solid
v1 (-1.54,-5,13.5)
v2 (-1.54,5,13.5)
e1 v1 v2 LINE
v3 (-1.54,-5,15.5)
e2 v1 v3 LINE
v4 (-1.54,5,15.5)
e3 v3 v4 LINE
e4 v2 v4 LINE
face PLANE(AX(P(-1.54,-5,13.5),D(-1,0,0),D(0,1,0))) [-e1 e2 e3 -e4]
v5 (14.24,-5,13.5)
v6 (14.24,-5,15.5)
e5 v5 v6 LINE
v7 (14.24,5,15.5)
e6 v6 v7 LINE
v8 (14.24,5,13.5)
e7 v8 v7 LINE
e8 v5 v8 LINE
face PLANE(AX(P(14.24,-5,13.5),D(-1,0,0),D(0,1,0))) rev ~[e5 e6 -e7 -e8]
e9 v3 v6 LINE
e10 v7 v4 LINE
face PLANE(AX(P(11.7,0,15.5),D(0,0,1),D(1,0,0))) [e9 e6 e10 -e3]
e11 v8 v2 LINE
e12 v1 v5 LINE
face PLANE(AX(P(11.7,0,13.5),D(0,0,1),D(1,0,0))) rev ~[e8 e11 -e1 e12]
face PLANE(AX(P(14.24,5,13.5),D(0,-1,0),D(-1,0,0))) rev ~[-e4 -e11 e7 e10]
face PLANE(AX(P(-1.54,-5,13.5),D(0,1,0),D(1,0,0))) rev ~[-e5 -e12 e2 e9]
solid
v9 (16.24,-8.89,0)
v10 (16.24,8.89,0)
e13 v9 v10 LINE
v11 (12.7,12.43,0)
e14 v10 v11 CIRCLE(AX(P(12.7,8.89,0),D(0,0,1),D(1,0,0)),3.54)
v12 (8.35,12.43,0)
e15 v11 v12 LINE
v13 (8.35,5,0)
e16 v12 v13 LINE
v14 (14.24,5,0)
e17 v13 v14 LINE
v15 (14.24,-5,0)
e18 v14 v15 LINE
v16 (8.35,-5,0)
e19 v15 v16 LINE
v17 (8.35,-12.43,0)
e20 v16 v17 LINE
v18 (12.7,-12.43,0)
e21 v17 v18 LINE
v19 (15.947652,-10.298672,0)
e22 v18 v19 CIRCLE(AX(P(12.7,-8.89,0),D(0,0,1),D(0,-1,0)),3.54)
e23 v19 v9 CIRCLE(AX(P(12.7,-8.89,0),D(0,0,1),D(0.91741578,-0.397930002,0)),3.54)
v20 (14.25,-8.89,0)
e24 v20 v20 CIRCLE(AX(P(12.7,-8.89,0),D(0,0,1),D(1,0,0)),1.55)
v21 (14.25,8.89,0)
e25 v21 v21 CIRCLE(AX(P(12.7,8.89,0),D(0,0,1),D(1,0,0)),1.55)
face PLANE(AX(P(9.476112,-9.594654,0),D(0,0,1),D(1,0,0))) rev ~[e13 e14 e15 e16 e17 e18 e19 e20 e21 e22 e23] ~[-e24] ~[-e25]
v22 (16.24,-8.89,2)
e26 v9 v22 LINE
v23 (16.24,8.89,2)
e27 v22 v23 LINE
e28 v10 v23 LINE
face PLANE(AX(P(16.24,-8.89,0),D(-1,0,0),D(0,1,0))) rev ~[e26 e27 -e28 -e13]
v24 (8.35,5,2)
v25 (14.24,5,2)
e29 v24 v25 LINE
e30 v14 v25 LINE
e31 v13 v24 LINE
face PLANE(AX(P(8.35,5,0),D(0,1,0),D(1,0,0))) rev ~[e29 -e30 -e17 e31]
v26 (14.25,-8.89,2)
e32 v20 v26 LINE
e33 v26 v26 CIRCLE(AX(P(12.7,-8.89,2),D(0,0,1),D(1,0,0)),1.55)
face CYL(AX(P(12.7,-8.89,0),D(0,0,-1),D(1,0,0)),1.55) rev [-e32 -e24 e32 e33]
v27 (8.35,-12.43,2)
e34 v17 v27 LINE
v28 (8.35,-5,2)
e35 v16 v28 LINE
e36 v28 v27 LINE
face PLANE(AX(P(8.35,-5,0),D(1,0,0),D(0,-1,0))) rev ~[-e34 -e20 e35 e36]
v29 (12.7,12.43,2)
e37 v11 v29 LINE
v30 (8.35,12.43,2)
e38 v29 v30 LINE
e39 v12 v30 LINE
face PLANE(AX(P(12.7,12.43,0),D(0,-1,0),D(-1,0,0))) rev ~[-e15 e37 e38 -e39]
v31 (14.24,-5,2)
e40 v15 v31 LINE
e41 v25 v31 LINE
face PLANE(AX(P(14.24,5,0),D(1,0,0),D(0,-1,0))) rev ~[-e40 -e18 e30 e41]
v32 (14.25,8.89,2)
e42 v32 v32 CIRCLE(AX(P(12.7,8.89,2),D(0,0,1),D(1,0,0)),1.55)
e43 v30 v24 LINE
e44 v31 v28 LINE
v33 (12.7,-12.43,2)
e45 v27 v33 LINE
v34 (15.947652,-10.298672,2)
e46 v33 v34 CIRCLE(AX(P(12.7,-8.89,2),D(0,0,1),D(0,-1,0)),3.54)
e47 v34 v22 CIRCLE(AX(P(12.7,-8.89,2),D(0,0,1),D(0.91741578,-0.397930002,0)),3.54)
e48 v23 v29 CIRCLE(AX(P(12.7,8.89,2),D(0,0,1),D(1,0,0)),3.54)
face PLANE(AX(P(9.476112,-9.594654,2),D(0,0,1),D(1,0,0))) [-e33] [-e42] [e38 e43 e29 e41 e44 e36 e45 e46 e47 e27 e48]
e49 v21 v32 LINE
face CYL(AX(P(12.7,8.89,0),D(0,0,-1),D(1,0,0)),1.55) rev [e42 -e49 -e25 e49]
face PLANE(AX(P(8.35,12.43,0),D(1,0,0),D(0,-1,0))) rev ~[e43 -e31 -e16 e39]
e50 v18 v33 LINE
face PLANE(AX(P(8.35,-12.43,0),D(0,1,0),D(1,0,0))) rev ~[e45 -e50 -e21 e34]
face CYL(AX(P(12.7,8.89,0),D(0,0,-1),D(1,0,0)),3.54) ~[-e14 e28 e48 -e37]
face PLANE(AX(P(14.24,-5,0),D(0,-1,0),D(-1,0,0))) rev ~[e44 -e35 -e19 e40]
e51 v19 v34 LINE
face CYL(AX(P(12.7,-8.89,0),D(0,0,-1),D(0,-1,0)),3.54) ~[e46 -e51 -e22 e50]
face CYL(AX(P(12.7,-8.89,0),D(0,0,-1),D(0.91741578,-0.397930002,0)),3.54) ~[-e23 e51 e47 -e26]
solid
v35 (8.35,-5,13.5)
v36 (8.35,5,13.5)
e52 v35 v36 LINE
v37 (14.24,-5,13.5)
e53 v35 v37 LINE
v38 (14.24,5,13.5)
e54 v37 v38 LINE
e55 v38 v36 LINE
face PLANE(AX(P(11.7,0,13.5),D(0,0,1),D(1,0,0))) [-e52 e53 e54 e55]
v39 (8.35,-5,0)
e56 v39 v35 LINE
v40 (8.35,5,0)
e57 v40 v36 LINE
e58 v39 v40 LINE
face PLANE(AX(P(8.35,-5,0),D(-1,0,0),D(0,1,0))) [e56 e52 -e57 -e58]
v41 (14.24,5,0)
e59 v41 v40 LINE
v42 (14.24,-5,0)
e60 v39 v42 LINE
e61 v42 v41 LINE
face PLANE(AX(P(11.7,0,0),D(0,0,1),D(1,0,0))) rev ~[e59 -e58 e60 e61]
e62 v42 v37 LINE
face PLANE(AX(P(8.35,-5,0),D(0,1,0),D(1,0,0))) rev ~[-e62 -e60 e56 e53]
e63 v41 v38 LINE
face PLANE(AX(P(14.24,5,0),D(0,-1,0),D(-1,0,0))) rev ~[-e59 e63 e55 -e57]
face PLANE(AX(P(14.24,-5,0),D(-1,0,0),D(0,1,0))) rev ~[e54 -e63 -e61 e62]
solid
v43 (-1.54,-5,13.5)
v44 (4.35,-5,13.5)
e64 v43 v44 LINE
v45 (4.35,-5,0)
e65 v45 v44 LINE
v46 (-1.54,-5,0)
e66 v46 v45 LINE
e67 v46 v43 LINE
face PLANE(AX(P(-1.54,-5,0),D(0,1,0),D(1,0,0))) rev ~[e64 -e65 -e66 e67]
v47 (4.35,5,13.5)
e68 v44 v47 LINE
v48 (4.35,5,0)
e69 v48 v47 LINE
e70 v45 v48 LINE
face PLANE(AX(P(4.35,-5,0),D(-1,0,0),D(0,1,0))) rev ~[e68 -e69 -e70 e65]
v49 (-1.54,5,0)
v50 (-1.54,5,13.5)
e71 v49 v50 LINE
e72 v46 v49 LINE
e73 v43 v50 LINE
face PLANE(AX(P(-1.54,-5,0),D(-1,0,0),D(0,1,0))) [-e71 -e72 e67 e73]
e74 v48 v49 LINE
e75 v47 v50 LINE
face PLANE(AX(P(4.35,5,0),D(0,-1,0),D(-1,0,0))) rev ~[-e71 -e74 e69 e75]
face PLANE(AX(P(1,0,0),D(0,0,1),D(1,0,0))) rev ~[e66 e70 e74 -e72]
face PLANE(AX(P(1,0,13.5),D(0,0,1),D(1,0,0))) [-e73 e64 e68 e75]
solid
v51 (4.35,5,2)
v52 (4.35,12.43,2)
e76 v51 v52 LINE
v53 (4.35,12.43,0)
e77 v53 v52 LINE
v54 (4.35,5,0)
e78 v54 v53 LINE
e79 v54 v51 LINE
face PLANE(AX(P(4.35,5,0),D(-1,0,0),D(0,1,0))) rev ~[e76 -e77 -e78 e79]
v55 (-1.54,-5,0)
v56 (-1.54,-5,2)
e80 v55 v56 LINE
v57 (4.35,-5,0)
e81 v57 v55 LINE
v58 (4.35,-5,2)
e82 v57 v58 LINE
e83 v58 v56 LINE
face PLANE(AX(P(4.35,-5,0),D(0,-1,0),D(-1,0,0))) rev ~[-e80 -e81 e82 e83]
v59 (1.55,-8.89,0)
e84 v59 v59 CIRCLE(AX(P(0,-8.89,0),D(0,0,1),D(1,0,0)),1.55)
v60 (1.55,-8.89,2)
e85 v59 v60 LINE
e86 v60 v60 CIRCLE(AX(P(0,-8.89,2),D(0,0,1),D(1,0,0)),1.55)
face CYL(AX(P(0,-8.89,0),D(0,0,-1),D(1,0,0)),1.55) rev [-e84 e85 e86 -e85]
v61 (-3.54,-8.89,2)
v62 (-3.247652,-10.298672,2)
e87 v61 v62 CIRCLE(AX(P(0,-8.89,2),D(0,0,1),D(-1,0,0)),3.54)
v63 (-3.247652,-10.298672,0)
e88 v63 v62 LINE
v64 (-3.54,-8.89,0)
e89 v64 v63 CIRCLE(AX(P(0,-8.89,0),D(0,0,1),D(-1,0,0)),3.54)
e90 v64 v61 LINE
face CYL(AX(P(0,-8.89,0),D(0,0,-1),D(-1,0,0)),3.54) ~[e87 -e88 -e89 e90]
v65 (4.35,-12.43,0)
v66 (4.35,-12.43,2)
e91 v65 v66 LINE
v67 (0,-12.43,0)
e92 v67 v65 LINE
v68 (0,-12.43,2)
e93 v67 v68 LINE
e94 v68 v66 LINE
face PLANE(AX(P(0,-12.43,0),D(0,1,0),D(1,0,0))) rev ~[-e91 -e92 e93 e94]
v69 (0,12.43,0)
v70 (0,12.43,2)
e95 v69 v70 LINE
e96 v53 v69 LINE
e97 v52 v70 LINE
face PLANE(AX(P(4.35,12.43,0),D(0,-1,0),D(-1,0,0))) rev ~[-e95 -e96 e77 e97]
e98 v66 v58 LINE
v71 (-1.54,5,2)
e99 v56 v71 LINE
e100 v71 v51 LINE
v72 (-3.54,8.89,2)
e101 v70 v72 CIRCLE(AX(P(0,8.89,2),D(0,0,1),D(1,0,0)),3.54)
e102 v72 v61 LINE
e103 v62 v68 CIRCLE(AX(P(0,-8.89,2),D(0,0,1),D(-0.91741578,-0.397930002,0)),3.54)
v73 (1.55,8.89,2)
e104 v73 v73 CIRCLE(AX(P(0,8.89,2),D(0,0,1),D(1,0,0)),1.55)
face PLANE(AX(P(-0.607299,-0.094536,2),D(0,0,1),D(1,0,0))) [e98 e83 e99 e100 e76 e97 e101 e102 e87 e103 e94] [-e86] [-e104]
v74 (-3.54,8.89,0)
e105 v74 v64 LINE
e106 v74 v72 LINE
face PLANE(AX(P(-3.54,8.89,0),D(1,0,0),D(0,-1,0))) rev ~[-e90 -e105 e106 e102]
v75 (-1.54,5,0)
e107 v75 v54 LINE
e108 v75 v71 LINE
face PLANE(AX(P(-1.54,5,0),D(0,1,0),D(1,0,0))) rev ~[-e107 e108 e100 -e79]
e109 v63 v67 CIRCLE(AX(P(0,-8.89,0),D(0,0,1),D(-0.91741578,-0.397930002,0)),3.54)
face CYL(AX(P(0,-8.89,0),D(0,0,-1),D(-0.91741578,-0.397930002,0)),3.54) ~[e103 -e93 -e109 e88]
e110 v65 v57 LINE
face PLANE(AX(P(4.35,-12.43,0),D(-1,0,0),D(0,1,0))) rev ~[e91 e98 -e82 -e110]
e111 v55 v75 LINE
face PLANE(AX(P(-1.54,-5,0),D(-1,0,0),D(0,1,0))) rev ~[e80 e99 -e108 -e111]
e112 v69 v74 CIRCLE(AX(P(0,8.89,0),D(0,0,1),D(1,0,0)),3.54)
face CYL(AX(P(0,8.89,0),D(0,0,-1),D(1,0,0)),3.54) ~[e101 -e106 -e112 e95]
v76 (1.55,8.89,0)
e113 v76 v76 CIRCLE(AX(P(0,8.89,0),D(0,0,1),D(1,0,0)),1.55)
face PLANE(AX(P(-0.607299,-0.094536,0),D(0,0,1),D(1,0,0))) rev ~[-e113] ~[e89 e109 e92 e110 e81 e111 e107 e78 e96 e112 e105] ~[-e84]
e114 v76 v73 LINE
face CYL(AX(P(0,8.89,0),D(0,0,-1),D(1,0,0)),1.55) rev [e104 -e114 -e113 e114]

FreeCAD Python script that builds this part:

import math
import FreeCAD as App
import Part
import Sketcher
from FreeCAD import Vector

doc = App.newDocument("Part")
body = doc.addObject("PartDesign::Body", "Body")

sketch1 = body.newObject("Sketcher::SketchObject", "Sketch")
sketch1.AttachmentSupport = (doc.getObject("XY_Plane"), [""])
sketch1.MapMode = "FlatFace"
sketch1.addGeometry([
    Part.LineSegment(Vector(-1.5, -5, 0), Vector(-1.5, 5, 0)),
    Part.LineSegment(Vector(-1.5, 5, 0), Vector(4.3, 5, 0)),
    Part.LineSegment(Vector(4.3, 5, 0), Vector(4.3, 12.4, 0)),
    Part.LineSegment(Vector(4.3, 12.4, 0), Vector(0, 12.4, 0)),
    Part.ArcOfCircle(Part.Circle(Vector(0, 8.9, 0), Vector(0, 0, 1), 3.5), math.radians(90), math.radians(180)),
    Part.LineSegment(Vector(-3.5, 8.9, 0), Vector(-3.5, -8.9, 0)),
    Part.ArcOfCircle(Part.Circle(Vector(0, -8.9, 0), Vector(0, 0, 1), 3.5), math.radians(180), math.radians(203)),
    Part.ArcOfCircle(Part.Circle(Vector(0, -8.9, 0), Vector(0, 0, 1), 3.5), math.radians(-157), math.radians(-90)),
    Part.LineSegment(Vector(0, -12.4, 0), Vector(4.3, -12.4, 0)),
    Part.LineSegment(Vector(4.3, -12.4, 0), Vector(4.3, -5, 0)),
    Part.LineSegment(Vector(4.3, -5, 0), Vector(-1.5, -5, 0)),
    Part.Circle(Vector(0, -8.9, 0), Vector(0, 0, 1), 1.6),
    Part.Circle(Vector(0, 8.9, 0), Vector(0, 0, 1), 1.6),
], False)
sketch1.addConstraint([
    Sketcher.Constraint("Coincident", 0, 2, 1, 1),
    Sketcher.Constraint("Coincident", 1, 2, 2, 1),
    Sketcher.Constraint("Coincident", 2, 2, 3, 1),
    Sketcher.Constraint("Tangent", 3, 2, 4, 1),
    Sketcher.Constraint("Tangent", 4, 2, 5, 1),
    Sketcher.Constraint("Tangent", 5, 2, 6, 1),
    Sketcher.Constraint("Tangent", 6, 2, 7, 1),
    Sketcher.Constraint("Tangent", 7, 2, 8, 1),
    Sketcher.Constraint("Coincident", 8, 2, 9, 1),
    Sketcher.Constraint("Coincident", 9, 2, 10, 1),
    Sketcher.Constraint("Coincident", 10, 2, 0, 1),
    Sketcher.Constraint("Vertical", 0),
    Sketcher.Constraint("Horizontal", 1),
    Sketcher.Constraint("Vertical", 2),
    Sketcher.Constraint("Horizontal", 3),
    Sketcher.Constraint("Vertical", 5),
    Sketcher.Constraint("Horizontal", 8),
    Sketcher.Constraint("Vertical", 9),
    Sketcher.Constraint("Horizontal", 10),
    Sketcher.Constraint("Coincident", 11, 3, 6, 3),
    Sketcher.Constraint("Coincident", 12, 3, 4, 3),
    Sketcher.Constraint("Equal", 4, 6),
    Sketcher.Constraint("Equal", 6, 7),
    Sketcher.Constraint("Equal", 11, 12),
    Sketcher.Constraint("Symmetric", 4, 3, 6, 3, -1, 1),
    Sketcher.Constraint("Symmetric", 1, 2, 9, 2, -1),
    Sketcher.Constraint("Diameter", 11, 3.1),
    Sketcher.Constraint("DistanceY", 0, 1, 0, 2, 10.0),
    Sketcher.Constraint("Radius", 4, 3.54),
    Sketcher.Constraint("DistanceX", 4, 2, 0, 2, 2.0),
    Sketcher.Constraint("DistanceX", 1, 1, 1, 2, 5.89),
    Sketcher.Constraint("DistanceY", 2, 1, 2, 2, 7.43),
    Sketcher.Constraint("DistanceX", 6, 2, -1, 1, 3.247652),
])
pad1 = body.newObject("PartDesign::Pad", "Pad")
pad1.Profile = sketch1
pad1.Length = 2
body2 = doc.addObject("PartDesign::Body", "Body001")

sketch2 = body2.newObject("Sketcher::SketchObject", "Sketch001")
sketch2.AttachmentSupport = (doc.getObject("XY_Plane001"), [""])
sketch2.MapMode = "FlatFace"
sketch2.addGeometry([
    Part.LineSegment(Vector(8.3, -5, 0), Vector(8.3, -12.4, 0)),
    Part.LineSegment(Vector(8.3, -12.4, 0), Vector(12.7, -12.4, 0)),
    Part.ArcOfCircle(Part.Circle(Vector(12.7, -8.9, 0), Vector(0, 0, 1), 3.5), math.radians(-90), math.radians(-23)),
    Part.ArcOfCircle(Part.Circle(Vector(12.7, -8.9, 0), Vector(0, 0, 1), 3.5), math.radians(-23), math.radians(0)),
    Part.LineSegment(Vector(16.2, -8.9, 0), Vector(16.2, 8.9, 0)),
    Part.ArcOfCircle(Part.Circle(Vector(12.7, 8.9, 0), Vector(0, 0, 1), 3.5), math.radians(0), math.radians(90)),
    Part.LineSegment(Vector(12.7, 12.4, 0), Vector(8.3, 12.4, 0)),
    Part.LineSegment(Vector(8.3, 12.4, 0), Vector(8.3, 5, 0)),
    Part.LineSegment(Vector(8.3, 5, 0), Vector(14.2, 5, 0)),
    Part.LineSegment(Vector(14.2, 5, 0), Vector(14.2, -5, 0)),
    Part.LineSegment(Vector(14.2, -5, 0), Vector(8.3, -5, 0)),
    Part.Circle(Vector(12.7, -8.9, 0), Vector(0, 0, 1), 1.6),
    Part.Circle(Vector(12.7, 8.9, 0), Vector(0, 0, 1), 1.6),
], False)
sketch2.addConstraint([
    Sketcher.Constraint("Coincident", 0, 2, 1, 1),
    Sketcher.Constraint("Tangent", 1, 2, 2, 1),
    Sketcher.Constraint("Tangent", 2, 2, 3, 1),
    Sketcher.Constraint("Tangent", 3, 2, 4, 1),
    Sketcher.Constraint("Tangent", 4, 2, 5, 1),
    Sketcher.Constraint("Tangent", 5, 2, 6, 1),
    Sketcher.Constraint("Coincident", 6, 2, 7, 1),
    Sketcher.Constraint("Coincident", 7, 2, 8, 1),
    Sketcher.Constraint("Coincident", 8, 2, 9, 1),
    Sketcher.Constraint("Coincident", 9, 2, 10, 1),
    Sketcher.Constraint("Coincident", 10, 2, 0, 1),
    Sketcher.Constraint("Vertical", 0),
    Sketcher.Constraint("Horizontal", 1),
    Sketcher.Constraint("Vertical", 4),
    Sketcher.Constraint("Horizontal", 6),
    Sketcher.Constraint("Vertical", 7),
    Sketcher.Constraint("Horizontal", 8),
    Sketcher.Constraint("Vertical", 9),
    Sketcher.Constraint("Horizontal", 10),
    Sketcher.Constraint("Coincident", 11, 3, 2, 3),
    Sketcher.Constraint("Coincident", 12, 3, 5, 3),
    Sketcher.Constraint("Equal", 2, 3),
    Sketcher.Constraint("Equal", 3, 5),
    Sketcher.Constraint("Equal", 11, 12),
    Sketcher.Constraint("Symmetric", 0, 2, 6, 2, -1),
    Sketcher.Constraint("Equal", 0, 7),
    Sketcher.Constraint("Diameter", 11, 3.1),
    Sketcher.Constraint("DistanceY", 9, 2, 9, 1, 10.0),
    Sketcher.Constraint("Radius", 2, 3.54),
    Sketcher.Constraint("DistanceX", 8, 2, 4, 2, 2.0),
    Sketcher.Constraint("DistanceX", 1, 1, 1, 2, 4.35),
    Sketcher.Constraint("DistanceY", 0, 2, 0, 1, 7.43),
    Sketcher.Constraint("DistanceX", -1, 1, 2, 3, 12.7),
    Sketcher.Constraint("DistanceX", -1, 1, 2, 2, 15.947652),
])
pad2 = body2.newObject("PartDesign::Pad", "Pad001")
pad2.Profile = sketch2
pad2.Length = 2
body3 = doc.addObject("PartDesign::Body", "Body002")

sketch3 = body3.newObject("Sketcher::SketchObject", "Sketch002")
sketch3.AttachmentSupport = (doc.getObject("XY_Plane002"), [""])
sketch3.MapMode = "FlatFace"
sketch3.addGeometry([
    Part.LineSegment(Vector(-2, 5, 0), Vector(-2, -5, 0)),
    Part.LineSegment(Vector(-2, -5, 0), Vector(4, -5, 0)),
    Part.LineSegment(Vector(4, -5, 0), Vector(4, 5, 0)),
    Part.LineSegment(Vector(4, 5, 0), Vector(-2, 5, 0)),
], False)
sketch3.addConstraint([
    Sketcher.Constraint("Coincident", 0, 2, 1, 1),
    Sketcher.Constraint("Coincident", 1, 2, 2, 1),
    Sketcher.Constraint("Coincident", 2, 2, 3, 1),
    Sketcher.Constraint("Coincident", 3, 2, 0, 1),
    Sketcher.Constraint("Vertical", 0),
    Sketcher.Constraint("Horizontal", 1),
    Sketcher.Constraint("Vertical", 2),
    Sketcher.Constraint("Horizontal", 3),
    Sketcher.Constraint("DistanceY", 0, 2, 0, 1, 10.0),
    Sketcher.Constraint("DistanceY", 0, 2, -1, 1, 5.0),
    Sketcher.Constraint("DistanceX", 1, 1, 1, 2, 5.89),
    Sketcher.Constraint("DistanceX", 0, 2, -1, 1, 1.54),
])
pad3 = body3.newObject("PartDesign::Pad", "Pad002")
pad3.Profile = sketch3
pad3.Length = 13.5
body4 = doc.addObject("PartDesign::Body", "Body003")

sketch4 = body4.newObject("Sketcher::SketchObject", "Sketch003")
sketch4.AttachmentSupport = (doc.getObject("XY_Plane003"), [""])
sketch4.MapMode = "FlatFace"
sketch4.addGeometry([
    Part.LineSegment(Vector(14, -5, 0), Vector(14, 5, 0)),
    Part.LineSegment(Vector(14, 5, 0), Vector(8, 5, 0)),
    Part.LineSegment(Vector(8, 5, 0), Vector(8, -5, 0)),
    Part.LineSegment(Vector(8, -5, 0), Vector(14, -5, 0)),
], False)
sketch4.addConstraint([
    Sketcher.Constraint("Coincident", 0, 2, 1, 1),
    Sketcher.Constraint("Coincident", 1, 2, 2, 1),
    Sketcher.Constraint("Coincident", 2, 2, 3, 1),
    Sketcher.Constraint("Coincident", 3, 2, 0, 1),
    Sketcher.Constraint("Vertical", 0),
    Sketcher.Constraint("Horizontal", 1),
    Sketcher.Constraint("Vertical", 2),
    Sketcher.Constraint("Horizontal", 3),
    Sketcher.Constraint("DistanceY", 0, 1, 0, 2, 10.0),
    Sketcher.Constraint("DistanceY", -1, 1, 0, 2, 5.0),
    Sketcher.Constraint("DistanceX", 1, 2, 1, 1, 5.89),
    Sketcher.Constraint("DistanceX", -1, 1, 0, 2, 14.24),
])
pad4 = body4.newObject("PartDesign::Pad", "Pad003")
pad4.Profile = sketch4
pad4.Length = 13.5
body5 = doc.addObject("PartDesign::Body", "Body004")

sketch5 = body5.newObject("Sketcher::SketchObject", "Sketch004")
sketch5.AttachmentSupport = (doc.getObject("XY_Plane004"), [""])
sketch5.MapMode = "FlatFace"
sketch5.AttachmentOffset = App.Placement(Vector(0, 0, 13.5), App.Rotation())
sketch5.addGeometry([
    Part.LineSegment(Vector(14, -5, 0), Vector(14, 5, 0)),
    Part.LineSegment(Vector(14, 5, 0), Vector(-2, 5, 0)),
    Part.LineSegment(Vector(-2, 5, 0), Vector(-2, -5, 0)),
    Part.LineSegment(Vector(-2, -5, 0), Vector(14, -5, 0)),
], False)
sketch5.addConstraint([
    Sketcher.Constraint("Coincident", 0, 2, 1, 1),
    Sketcher.Constraint("Coincident", 1, 2, 2, 1),
    Sketcher.Constraint("Coincident", 2, 2, 3, 1),
    Sketcher.Constraint("Coincident", 3, 2, 0, 1),
    Sketcher.Constraint("Vertical", 0),
    Sketcher.Constraint("Horizontal", 1),
    Sketcher.Constraint("Vertical", 2),
    Sketcher.Constraint("Horizontal", 3),
    Sketcher.Constraint("DistanceY", 0, 1, 0, 2, 10.0),
    Sketcher.Constraint("DistanceY", -1, 1, 0, 2, 5.0),
    Sketcher.Constraint("DistanceX", 1, 2, 1, 1, 15.78),
    Sketcher.Constraint("DistanceX", -1, 1, 0, 2, 14.24),
])
pad5 = body5.newObject("PartDesign::Pad", "Pad004")
pad5.Profile = sketch5
pad5.Length = 2

doc.recompute()
